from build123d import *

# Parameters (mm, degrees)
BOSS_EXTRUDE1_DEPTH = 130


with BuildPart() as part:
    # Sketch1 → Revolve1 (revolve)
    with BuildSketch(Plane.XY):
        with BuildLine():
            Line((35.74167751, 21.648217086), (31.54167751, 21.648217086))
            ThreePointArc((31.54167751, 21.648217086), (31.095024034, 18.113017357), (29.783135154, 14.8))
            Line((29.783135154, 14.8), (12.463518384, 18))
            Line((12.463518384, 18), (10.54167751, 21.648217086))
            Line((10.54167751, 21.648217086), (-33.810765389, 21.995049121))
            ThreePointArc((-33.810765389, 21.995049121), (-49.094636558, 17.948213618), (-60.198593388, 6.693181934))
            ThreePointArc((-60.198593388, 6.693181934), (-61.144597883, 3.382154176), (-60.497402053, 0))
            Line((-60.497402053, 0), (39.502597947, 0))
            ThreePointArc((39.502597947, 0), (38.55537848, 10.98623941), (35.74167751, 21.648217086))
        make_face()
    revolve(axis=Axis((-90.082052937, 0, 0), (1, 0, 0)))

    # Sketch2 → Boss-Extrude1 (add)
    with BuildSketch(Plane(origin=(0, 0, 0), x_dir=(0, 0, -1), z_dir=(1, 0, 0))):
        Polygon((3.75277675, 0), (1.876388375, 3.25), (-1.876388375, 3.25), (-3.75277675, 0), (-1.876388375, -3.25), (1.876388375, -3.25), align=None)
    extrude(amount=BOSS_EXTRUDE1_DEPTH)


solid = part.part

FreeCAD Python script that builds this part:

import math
import FreeCAD as App
import Part
import Sketcher
Q = App.Units.Quantity

doc = App.newDocument("Part")
body = doc.addObject("PartDesign::Body", "Body")

sketch1 = body.newObject("Sketcher::SketchObject", "Sketch")
sketch1.AttachmentSupport = (doc.getObject("XY_Plane"), [""])
sketch1.MapMode = "FlatFace"
sketch1.addGeometry([
    Part.LineSegment(App.Vector(35.7, 21.6, 0), App.Vector(31.5, 21.6, 0)),
    Part.ArcOfCircle(Part.Circle(App.Vector(17.3, 21.6, 0), App.Vector(0, 0, 1), 14.2), math.radians(-29), math.radians(0)),
    Part.LineSegment(App.Vector(29.8, 14.8, 0), App.Vector(12.5, 18, 0)),
    Part.LineSegment(App.Vector(12.5, 18, 0), App.Vector(10.5, 21.6, 0)),
    Part.LineSegment(App.Vector(10.5, 21.6, 0), App.Vector(-33.8, 22, 0)),
    Part.ArcOfCircle(Part.Circle(App.Vector(-34, -8, 0), App.Vector(0, 0, 1), 30), math.radians(90), math.radians(151)),
    Part.ArcOfCircle(Part.Circle(App.Vector(-53.7, 3.1, 0), App.Vector(0, 0, 1), 7.4), math.radians(151), math.radians(204)),
    Part.LineSegment(App.Vector(-60.5, 0, 0), App.Vector(39.5, 0, 0)),
    Part.ArcOfCircle(Part.Circle(App.Vector(-24.7, 0, 0), App.Vector(0, 0, 1), 64.2), math.radians(0), math.radians(19.71)),
], False)
sketch1.addConstraint([
    Sketcher.Constraint("Coincident", 0, 2, 1, 2),
    Sketcher.Constraint("Coincident", 1, 1, 2, 1),
    Sketcher.Constraint("Coincident", 2, 2, 3, 1),
    Sketcher.Constraint("Coincident", 3, 2, 4, 1),
    Sketcher.Constraint("Tangent", 4, 2, 5, 1),
    Sketcher.Constraint("Tangent", 5, 2, 6, 1),
    Sketcher.Constraint("Coincident", 6, 2, 7, 1),
    Sketcher.Constraint("Coincident", 7, 2, 8, 1),
    Sketcher.Constraint("Coincident", 8, 2, 0, 1),
    Sketcher.Constraint("Horizontal", 0),
    Sketcher.Constraint("Horizontal", 7),
    Sketcher.Constraint("PointOnObject", 8, 3, -1),
    Sketcher.Constraint("PointOnObject", 6, 2, -1),
    Sketcher.Constraint("Horizontal", 1, 3, 0, 2),
    Sketcher.Constraint("Horizontal", 0, 2, 3, 2),
    Sketcher.Constraint("Radius", 5, 30.0),
    Sketcher.Constraint("DistanceX", 7, 1, 7, 2, 100.0),
    Sketcher.Constraint("DistanceX", 0, 2, 0, 1, 4.2),
    Sketcher.Constraint("DistanceY", -1, 1, 2, 2, 18.0),
    Sketcher.Constraint("DistanceX", 3, 2, 0, 2, 21.0),
    Sketcher.Constraint("DistanceY", -1, 1, 1, 1, 14.8),
    Sketcher.Constraint("Radius", 1, 14.213632),
    Sketcher.Constraint("Radius", 6, 7.435368),
    Sketcher.Constraint("Radius", 8, 64.185062),
    Sketcher.Constraint("Distance", 4, 44.353799),
    Sketcher.Constraint("DistanceX", 5, 3, 1, 3, 51.373401),
    Sketcher.Constraint("DistanceX", 8, 3, 1, 1, 54.4656),
    Sketcher.Constraint("DistanceX", 6, 3, -1, 1, 53.716629),
    Sketcher.Constraint("DistanceX", -1, 1, 2, 2, 12.463518),
])
revolution = body.newObject("PartDesign::Revolution", "Revolution")
revolution.Profile = sketch1
revolution.ReferenceAxis = (sketch1, ["H_Axis"])
revolution.Angle = 360

sketch2 = body.newObject("Sketcher::SketchObject", "Sketch001")
sketch2.AttachmentSupport = (doc.getObject("YZ_Plane"), [""])
sketch2.MapMode = "FlatFace"
sketch2.addGeometry([
    Part.LineSegment(App.Vector(0, -3.8, 0), App.Vector(3.2, -1.9, 0)),
    Part.LineSegment(App.Vector(3.2, -1.9, 0), App.Vector(3.2, 1.9, 0)),
    Part.LineSegment(App.Vector(3.2, 1.9, 0), App.Vector(0, 3.8, 0)),
    Part.LineSegment(App.Vector(0, 3.8, 0), App.Vector(-3.2, 1.9, 0)),
    Part.LineSegment(App.Vector(-3.2, 1.9, 0), App.Vector(-3.2, -1.9, 0)),
    Part.LineSegment(App.Vector(-3.2, -1.9, 0), App.Vector(0, -3.8, 0)),
], False)
sketch2.addConstraint([
    Sketcher.Constraint("Coincident", 0, 2, 1, 1),
    Sketcher.Constraint("Coincident", 1, 2, 2, 1),
    Sketcher.Constraint("Coincident", 2, 2, 3, 1),
    Sketcher.Constraint("Coincident", 3, 2, 4, 1),
    Sketcher.Constraint("Coincident", 4, 2, 5, 1),
    Sketcher.Constraint("Coincident", 5, 2, 0, 1),
    Sketcher.Constraint("Vertical", 1),
    Sketcher.Constraint("Vertical", 4),
    Sketcher.Constraint("Symmetric", 0, 2, 3, 2, -1, 1),
    Sketcher.Constraint("Symmetric", 2, 2, 5, 2, -1, 1),
    Sketcher.Constraint("PointOnObject", 2, 2, -2),
    Sketcher.Constraint("Parallel", 2, 5),
    Sketcher.Constraint("Horizontal", 1, 2, 3, 2),
    Sketcher.Constraint("Angle", 0, Q("30 deg")),
    Sketcher.Constraint("DistanceX", 3, 2, 1, 2, 6.5),
    Sketcher.Constraint("DistanceY", 1, 1, 1, 2, 3.752777),
])
pad1 = body.newObject("PartDesign::Pad", "Pad")
pad1.Profile = sketch2
pad1.Length = 130

doc.recompute()
